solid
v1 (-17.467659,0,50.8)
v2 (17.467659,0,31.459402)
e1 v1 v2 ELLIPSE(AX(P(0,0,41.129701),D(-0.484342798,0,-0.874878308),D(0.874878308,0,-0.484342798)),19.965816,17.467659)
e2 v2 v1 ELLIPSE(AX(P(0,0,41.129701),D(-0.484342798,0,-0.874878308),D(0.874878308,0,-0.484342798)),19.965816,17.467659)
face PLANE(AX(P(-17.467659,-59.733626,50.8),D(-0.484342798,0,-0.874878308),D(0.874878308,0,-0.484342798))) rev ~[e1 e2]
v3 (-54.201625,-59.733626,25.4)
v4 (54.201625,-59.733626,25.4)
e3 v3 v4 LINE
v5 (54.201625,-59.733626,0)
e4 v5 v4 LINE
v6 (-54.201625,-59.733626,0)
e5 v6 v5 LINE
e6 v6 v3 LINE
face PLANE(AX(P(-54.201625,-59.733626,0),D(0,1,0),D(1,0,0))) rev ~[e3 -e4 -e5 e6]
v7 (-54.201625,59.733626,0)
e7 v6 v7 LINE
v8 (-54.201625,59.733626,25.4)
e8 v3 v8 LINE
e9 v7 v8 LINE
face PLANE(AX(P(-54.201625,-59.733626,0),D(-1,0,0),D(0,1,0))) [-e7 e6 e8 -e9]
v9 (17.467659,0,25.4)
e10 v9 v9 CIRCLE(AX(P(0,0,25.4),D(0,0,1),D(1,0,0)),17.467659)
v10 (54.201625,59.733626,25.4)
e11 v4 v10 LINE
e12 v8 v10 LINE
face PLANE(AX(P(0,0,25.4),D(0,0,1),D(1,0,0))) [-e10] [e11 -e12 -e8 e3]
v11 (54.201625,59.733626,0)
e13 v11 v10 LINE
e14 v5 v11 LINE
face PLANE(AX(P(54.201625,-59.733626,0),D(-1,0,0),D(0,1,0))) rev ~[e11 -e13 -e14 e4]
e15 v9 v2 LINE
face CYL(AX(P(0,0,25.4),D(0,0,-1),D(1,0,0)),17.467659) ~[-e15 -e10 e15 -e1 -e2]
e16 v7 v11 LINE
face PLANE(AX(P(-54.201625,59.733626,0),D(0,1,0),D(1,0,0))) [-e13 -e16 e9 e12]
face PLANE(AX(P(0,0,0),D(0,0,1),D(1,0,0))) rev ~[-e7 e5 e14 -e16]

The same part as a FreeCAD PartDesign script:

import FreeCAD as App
import Part
import Sketcher
Q = App.Units.Quantity

doc = App.newDocument("Part")
body = doc.addObject("PartDesign::Body", "Body")

# Sketch on XY plane
sketch1 = doc.addObject("Sketcher::SketchObject", "Sketch")
body.addObject(sketch1)
sketch1.AttachmentSupport = (doc.XY_Plane, [""])
sketch1.MapMode = "FlatFace"
sketch1.addGeometry([
    Part.LineSegment(App.Vector(-54.201625, 59.733626, 0), App.Vector(-54.201625, -59.733626, 0)),
    Part.LineSegment(App.Vector(-54.201625, -59.733626, 0), App.Vector(54.201625, -59.733626, 0)),
    Part.LineSegment(App.Vector(54.201625, -59.733626, 0), App.Vector(54.201625, 59.733626, 0)),
    Part.LineSegment(App.Vector(54.201625, 59.733626, 0), App.Vector(-54.201625, 59.733626, 0)),
], False)
sketch1.addConstraint([
    Sketcher.Constraint("Coincident", 0, 2, 1, 1),
    Sketcher.Constraint("Coincident", 1, 2, 2, 1),
    Sketcher.Constraint("Coincident", 2, 2, 3, 1),
    Sketcher.Constraint("Coincident", 3, 2, 0, 1),
    Sketcher.Constraint("Vertical", 0),
    Sketcher.Constraint("Horizontal", 1),
    Sketcher.Constraint("Vertical", 2),
    Sketcher.Constraint("Horizontal", 3),
    Sketcher.Constraint("Symmetric", 0, 2, 2, 2, -1, 1),
    Sketcher.Constraint("DistanceX", 1, 1, 1, 2, 108.40325),
    Sketcher.Constraint("DistanceY", 0, 2, 0, 1, 119.467252),
])
pad1 = doc.addObject("PartDesign::Pad", "Pad")
body.addObject(pad1)
pad1.Profile = sketch1
pad1.Length = Q("1 in")

# Sketch on XY plane
sketch2 = doc.addObject("Sketcher::SketchObject", "Sketch001")
body.addObject(sketch2)
sketch2.AttachmentSupport = (doc.XY_Plane, [""])
sketch2.MapMode = "FlatFace"
sketch2.AttachmentOffset = App.Placement(App.Vector(0, 0, 1 * 25.4), App.Rotation())
sketch2.addGeometry(Part.Circle(App.Vector(0, 0, 0), App.Vector(0, 0, 1), 17.467659), False)
sketch2.addConstraint([
    Sketcher.Constraint("Coincident", 0, 3, -1, 1),
    Sketcher.Constraint("Diameter", 0, 34.935318),
])
pad2 = doc.addObject("PartDesign::Pad", "Pad001")
body.addObject(pad2)
pad2.Profile = sketch2
pad2.Length = Q("1 in")

# Sketch on XZ plane
sketch3 = doc.addObject("Sketcher::SketchObject", "Sketch002")
body.addObject(sketch3)
sketch3.AttachmentSupport = (doc.XZ_Plane, [""])
sketch3.MapMode = "FlatFace"
sketch3.AttachmentOffset = App.Placement(App.Vector(0, 0, 59.733626), App.Rotation())
sketch3.addGeometry([
    Part.LineSegment(App.Vector(17.467659, 50.8, 0), App.Vector(-17.467659, 50.8, 0)),
    Part.LineSegment(App.Vector(-17.467659, 50.8, 0), App.Vector(17.467659, 31.459402, 0)),
    Part.LineSegment(App.Vector(17.467659, 31.459402, 0), App.Vector(17.467659, 50.8, 0)),
], False)
sketch3.addConstraint([
    Sketcher.Constraint("Coincident", 0, 2, 1, 1),
    Sketcher.Constraint("Coincident", 1, 2, 2, 1),
    Sketcher.Constraint("Coincident", 2, 2, 0, 1),
    Sketcher.Constraint("Horizontal", 0),
    Sketcher.Constraint("Vertical", 2),
    Sketcher.Constraint("DistanceY", -1, 1, 0, 2, Q("2 in")),
    Sketcher.Constraint("DistanceX", 0, 2, 0, 1, 34.935318),
    Sketcher.Constraint("Distance", 1, 39.931631),
    Sketcher.Constraint("DistanceX", 0, 2, -1, 1, 17.467659),
])
pocket1 = doc.addObject("PartDesign::Pocket", "Pocket")
body.addObject(pocket1)
pocket1.Profile = sketch3
pocket1.Type = "ThroughAll"

doc.recompute()
